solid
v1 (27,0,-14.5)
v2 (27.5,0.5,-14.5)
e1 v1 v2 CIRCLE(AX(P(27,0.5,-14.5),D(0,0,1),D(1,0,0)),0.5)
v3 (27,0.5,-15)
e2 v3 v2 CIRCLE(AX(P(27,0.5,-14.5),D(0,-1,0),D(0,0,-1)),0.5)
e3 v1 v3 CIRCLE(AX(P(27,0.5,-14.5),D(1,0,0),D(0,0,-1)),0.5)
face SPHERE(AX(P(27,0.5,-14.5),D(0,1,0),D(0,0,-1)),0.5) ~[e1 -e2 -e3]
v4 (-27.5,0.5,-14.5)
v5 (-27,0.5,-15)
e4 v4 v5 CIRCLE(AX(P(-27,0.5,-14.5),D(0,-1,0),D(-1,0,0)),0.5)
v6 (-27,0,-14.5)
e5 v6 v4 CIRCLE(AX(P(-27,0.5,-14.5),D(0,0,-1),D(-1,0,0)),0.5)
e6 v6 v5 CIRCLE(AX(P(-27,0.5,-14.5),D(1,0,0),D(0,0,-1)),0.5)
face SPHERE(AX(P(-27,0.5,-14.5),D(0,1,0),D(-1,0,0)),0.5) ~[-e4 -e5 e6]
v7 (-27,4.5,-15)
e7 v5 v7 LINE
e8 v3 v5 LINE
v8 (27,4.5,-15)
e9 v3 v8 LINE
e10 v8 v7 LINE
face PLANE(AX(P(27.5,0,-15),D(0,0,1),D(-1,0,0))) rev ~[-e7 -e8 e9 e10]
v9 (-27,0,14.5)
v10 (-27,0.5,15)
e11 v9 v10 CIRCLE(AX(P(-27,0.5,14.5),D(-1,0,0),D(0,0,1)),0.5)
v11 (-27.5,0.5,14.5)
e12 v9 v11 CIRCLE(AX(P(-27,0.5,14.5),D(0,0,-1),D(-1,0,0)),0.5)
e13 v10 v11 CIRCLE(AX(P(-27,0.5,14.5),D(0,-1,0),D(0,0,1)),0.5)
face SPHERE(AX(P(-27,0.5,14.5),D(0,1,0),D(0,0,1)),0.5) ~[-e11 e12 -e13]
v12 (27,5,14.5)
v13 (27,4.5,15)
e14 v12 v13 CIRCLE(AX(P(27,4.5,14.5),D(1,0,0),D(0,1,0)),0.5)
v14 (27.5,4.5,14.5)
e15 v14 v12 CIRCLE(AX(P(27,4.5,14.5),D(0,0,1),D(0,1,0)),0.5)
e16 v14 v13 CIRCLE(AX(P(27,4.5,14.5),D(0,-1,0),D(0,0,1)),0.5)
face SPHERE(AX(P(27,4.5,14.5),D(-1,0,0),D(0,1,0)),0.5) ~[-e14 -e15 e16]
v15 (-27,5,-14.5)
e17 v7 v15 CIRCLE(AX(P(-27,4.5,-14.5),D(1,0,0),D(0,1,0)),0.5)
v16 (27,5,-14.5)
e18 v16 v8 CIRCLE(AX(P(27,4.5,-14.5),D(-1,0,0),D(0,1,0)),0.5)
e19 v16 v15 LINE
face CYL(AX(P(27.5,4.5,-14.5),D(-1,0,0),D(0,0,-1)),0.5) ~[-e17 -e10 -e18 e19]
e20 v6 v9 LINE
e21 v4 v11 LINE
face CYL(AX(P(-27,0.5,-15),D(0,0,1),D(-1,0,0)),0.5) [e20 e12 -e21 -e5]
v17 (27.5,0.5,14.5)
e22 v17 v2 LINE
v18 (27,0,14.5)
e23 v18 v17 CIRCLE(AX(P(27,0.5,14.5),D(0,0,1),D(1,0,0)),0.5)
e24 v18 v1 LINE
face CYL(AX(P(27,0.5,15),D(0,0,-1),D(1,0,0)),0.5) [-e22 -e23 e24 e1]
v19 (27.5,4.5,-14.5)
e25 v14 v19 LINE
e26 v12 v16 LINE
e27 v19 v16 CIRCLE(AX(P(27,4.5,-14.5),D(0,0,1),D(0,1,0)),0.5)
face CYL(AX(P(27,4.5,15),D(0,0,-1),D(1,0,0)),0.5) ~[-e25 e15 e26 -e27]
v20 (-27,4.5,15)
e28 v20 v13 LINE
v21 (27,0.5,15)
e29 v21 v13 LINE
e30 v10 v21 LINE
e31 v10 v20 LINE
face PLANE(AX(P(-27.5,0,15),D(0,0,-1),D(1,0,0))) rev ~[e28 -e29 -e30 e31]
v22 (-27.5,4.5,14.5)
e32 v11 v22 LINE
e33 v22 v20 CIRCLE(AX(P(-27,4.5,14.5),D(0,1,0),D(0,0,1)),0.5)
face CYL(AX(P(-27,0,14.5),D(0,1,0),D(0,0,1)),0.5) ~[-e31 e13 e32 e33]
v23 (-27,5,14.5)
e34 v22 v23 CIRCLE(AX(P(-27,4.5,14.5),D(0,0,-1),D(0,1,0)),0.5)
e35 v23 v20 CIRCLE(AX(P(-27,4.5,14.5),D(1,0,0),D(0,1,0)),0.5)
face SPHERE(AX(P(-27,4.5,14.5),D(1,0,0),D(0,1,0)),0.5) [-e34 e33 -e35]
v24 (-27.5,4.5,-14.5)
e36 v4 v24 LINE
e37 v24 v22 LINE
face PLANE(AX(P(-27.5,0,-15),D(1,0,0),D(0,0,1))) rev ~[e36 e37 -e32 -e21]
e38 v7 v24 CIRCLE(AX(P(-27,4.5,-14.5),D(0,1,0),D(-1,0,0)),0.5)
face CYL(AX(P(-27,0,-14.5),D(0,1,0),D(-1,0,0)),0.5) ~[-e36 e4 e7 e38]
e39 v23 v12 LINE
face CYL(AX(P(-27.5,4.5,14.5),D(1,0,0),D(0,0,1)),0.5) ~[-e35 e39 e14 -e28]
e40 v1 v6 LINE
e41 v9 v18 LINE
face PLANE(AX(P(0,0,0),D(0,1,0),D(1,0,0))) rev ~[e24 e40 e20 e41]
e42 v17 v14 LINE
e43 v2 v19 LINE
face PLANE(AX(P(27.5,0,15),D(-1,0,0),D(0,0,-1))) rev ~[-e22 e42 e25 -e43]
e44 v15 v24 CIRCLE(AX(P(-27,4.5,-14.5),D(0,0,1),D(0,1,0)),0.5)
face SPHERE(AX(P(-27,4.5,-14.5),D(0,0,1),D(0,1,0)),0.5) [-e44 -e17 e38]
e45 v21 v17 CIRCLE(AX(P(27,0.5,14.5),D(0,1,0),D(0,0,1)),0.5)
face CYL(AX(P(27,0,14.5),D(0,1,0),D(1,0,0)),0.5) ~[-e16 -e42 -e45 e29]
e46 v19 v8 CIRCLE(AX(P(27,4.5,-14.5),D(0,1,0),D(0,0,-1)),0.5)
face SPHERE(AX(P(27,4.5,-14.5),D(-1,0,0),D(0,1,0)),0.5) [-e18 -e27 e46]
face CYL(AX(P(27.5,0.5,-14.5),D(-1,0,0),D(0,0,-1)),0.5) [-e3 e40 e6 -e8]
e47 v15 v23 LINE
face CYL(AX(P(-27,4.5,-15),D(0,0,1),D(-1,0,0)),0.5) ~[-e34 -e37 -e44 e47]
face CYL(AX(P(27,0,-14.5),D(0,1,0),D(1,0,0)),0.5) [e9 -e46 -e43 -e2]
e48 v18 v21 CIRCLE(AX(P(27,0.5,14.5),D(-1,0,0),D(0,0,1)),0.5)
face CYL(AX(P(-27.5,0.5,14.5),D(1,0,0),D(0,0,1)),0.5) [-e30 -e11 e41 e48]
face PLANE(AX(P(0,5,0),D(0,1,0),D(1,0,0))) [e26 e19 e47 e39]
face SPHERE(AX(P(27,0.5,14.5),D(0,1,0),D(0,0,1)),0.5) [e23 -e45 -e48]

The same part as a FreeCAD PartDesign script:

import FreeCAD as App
import Part
import Sketcher

V = App.Vector
Q = App.Units.Quantity


def add_polygon(sketch, points):
    """Adds a closed chain of lines whose ends are joined by coincident constraints."""
    first, n = sketch.GeometryCount, len(points)
    for a, b in zip(points, points[1:] + points[:1]):
        sketch.addGeometry(Part.LineSegment(App.Vector(*a, 0), App.Vector(*b, 0)), False)
    for i in range(n):
        sketch.addConstraint(Sketcher.Constraint("Coincident", first + i, 2, first + (i + 1) % n, 1))

doc = App.newDocument("Part")
body = doc.addObject("PartDesign::Body", "Body")

# Sketch on XZ plane
sketch1 = body.newObject("Sketcher::SketchObject", "Sketch")
sketch1.AttachmentSupport = (doc.getObject("XZ_Plane"), [""])
sketch1.MapMode = "FlatFace"
add_polygon(sketch1, [(27.5, 15), (27.5, -15), (-27.5, -15), (-27.5, 15)])  # lines 0-3
sketch1.addConstraint([
    Sketcher.Constraint("Vertical", 0),
    Sketcher.Constraint("Horizontal", 1),
    Sketcher.Constraint("Vertical", 2),
    Sketcher.Constraint("Horizontal", 3),
    Sketcher.Constraint("Symmetric", 0, 2, 2, 2, -1, 1),
    Sketcher.Constraint("DistanceX", 1, 2, 1, 1, Q("55 mm")),
    Sketcher.Constraint("DistanceY", 0, 2, 0, 1, Q("30 mm")),
])
pad1 = body.newObject("PartDesign::Pad", "Pad")
pad1.Profile = sketch1
pad1.Length = 5
pad1.Reversed = True
doc.recompute()

fillet = body.newObject("PartDesign::Fillet", "Fillet")
fillet.Base = (pad1, ["Edge1"])
fillet.UseAllEdges = True
fillet.Radius = 0.5

doc.recompute()
